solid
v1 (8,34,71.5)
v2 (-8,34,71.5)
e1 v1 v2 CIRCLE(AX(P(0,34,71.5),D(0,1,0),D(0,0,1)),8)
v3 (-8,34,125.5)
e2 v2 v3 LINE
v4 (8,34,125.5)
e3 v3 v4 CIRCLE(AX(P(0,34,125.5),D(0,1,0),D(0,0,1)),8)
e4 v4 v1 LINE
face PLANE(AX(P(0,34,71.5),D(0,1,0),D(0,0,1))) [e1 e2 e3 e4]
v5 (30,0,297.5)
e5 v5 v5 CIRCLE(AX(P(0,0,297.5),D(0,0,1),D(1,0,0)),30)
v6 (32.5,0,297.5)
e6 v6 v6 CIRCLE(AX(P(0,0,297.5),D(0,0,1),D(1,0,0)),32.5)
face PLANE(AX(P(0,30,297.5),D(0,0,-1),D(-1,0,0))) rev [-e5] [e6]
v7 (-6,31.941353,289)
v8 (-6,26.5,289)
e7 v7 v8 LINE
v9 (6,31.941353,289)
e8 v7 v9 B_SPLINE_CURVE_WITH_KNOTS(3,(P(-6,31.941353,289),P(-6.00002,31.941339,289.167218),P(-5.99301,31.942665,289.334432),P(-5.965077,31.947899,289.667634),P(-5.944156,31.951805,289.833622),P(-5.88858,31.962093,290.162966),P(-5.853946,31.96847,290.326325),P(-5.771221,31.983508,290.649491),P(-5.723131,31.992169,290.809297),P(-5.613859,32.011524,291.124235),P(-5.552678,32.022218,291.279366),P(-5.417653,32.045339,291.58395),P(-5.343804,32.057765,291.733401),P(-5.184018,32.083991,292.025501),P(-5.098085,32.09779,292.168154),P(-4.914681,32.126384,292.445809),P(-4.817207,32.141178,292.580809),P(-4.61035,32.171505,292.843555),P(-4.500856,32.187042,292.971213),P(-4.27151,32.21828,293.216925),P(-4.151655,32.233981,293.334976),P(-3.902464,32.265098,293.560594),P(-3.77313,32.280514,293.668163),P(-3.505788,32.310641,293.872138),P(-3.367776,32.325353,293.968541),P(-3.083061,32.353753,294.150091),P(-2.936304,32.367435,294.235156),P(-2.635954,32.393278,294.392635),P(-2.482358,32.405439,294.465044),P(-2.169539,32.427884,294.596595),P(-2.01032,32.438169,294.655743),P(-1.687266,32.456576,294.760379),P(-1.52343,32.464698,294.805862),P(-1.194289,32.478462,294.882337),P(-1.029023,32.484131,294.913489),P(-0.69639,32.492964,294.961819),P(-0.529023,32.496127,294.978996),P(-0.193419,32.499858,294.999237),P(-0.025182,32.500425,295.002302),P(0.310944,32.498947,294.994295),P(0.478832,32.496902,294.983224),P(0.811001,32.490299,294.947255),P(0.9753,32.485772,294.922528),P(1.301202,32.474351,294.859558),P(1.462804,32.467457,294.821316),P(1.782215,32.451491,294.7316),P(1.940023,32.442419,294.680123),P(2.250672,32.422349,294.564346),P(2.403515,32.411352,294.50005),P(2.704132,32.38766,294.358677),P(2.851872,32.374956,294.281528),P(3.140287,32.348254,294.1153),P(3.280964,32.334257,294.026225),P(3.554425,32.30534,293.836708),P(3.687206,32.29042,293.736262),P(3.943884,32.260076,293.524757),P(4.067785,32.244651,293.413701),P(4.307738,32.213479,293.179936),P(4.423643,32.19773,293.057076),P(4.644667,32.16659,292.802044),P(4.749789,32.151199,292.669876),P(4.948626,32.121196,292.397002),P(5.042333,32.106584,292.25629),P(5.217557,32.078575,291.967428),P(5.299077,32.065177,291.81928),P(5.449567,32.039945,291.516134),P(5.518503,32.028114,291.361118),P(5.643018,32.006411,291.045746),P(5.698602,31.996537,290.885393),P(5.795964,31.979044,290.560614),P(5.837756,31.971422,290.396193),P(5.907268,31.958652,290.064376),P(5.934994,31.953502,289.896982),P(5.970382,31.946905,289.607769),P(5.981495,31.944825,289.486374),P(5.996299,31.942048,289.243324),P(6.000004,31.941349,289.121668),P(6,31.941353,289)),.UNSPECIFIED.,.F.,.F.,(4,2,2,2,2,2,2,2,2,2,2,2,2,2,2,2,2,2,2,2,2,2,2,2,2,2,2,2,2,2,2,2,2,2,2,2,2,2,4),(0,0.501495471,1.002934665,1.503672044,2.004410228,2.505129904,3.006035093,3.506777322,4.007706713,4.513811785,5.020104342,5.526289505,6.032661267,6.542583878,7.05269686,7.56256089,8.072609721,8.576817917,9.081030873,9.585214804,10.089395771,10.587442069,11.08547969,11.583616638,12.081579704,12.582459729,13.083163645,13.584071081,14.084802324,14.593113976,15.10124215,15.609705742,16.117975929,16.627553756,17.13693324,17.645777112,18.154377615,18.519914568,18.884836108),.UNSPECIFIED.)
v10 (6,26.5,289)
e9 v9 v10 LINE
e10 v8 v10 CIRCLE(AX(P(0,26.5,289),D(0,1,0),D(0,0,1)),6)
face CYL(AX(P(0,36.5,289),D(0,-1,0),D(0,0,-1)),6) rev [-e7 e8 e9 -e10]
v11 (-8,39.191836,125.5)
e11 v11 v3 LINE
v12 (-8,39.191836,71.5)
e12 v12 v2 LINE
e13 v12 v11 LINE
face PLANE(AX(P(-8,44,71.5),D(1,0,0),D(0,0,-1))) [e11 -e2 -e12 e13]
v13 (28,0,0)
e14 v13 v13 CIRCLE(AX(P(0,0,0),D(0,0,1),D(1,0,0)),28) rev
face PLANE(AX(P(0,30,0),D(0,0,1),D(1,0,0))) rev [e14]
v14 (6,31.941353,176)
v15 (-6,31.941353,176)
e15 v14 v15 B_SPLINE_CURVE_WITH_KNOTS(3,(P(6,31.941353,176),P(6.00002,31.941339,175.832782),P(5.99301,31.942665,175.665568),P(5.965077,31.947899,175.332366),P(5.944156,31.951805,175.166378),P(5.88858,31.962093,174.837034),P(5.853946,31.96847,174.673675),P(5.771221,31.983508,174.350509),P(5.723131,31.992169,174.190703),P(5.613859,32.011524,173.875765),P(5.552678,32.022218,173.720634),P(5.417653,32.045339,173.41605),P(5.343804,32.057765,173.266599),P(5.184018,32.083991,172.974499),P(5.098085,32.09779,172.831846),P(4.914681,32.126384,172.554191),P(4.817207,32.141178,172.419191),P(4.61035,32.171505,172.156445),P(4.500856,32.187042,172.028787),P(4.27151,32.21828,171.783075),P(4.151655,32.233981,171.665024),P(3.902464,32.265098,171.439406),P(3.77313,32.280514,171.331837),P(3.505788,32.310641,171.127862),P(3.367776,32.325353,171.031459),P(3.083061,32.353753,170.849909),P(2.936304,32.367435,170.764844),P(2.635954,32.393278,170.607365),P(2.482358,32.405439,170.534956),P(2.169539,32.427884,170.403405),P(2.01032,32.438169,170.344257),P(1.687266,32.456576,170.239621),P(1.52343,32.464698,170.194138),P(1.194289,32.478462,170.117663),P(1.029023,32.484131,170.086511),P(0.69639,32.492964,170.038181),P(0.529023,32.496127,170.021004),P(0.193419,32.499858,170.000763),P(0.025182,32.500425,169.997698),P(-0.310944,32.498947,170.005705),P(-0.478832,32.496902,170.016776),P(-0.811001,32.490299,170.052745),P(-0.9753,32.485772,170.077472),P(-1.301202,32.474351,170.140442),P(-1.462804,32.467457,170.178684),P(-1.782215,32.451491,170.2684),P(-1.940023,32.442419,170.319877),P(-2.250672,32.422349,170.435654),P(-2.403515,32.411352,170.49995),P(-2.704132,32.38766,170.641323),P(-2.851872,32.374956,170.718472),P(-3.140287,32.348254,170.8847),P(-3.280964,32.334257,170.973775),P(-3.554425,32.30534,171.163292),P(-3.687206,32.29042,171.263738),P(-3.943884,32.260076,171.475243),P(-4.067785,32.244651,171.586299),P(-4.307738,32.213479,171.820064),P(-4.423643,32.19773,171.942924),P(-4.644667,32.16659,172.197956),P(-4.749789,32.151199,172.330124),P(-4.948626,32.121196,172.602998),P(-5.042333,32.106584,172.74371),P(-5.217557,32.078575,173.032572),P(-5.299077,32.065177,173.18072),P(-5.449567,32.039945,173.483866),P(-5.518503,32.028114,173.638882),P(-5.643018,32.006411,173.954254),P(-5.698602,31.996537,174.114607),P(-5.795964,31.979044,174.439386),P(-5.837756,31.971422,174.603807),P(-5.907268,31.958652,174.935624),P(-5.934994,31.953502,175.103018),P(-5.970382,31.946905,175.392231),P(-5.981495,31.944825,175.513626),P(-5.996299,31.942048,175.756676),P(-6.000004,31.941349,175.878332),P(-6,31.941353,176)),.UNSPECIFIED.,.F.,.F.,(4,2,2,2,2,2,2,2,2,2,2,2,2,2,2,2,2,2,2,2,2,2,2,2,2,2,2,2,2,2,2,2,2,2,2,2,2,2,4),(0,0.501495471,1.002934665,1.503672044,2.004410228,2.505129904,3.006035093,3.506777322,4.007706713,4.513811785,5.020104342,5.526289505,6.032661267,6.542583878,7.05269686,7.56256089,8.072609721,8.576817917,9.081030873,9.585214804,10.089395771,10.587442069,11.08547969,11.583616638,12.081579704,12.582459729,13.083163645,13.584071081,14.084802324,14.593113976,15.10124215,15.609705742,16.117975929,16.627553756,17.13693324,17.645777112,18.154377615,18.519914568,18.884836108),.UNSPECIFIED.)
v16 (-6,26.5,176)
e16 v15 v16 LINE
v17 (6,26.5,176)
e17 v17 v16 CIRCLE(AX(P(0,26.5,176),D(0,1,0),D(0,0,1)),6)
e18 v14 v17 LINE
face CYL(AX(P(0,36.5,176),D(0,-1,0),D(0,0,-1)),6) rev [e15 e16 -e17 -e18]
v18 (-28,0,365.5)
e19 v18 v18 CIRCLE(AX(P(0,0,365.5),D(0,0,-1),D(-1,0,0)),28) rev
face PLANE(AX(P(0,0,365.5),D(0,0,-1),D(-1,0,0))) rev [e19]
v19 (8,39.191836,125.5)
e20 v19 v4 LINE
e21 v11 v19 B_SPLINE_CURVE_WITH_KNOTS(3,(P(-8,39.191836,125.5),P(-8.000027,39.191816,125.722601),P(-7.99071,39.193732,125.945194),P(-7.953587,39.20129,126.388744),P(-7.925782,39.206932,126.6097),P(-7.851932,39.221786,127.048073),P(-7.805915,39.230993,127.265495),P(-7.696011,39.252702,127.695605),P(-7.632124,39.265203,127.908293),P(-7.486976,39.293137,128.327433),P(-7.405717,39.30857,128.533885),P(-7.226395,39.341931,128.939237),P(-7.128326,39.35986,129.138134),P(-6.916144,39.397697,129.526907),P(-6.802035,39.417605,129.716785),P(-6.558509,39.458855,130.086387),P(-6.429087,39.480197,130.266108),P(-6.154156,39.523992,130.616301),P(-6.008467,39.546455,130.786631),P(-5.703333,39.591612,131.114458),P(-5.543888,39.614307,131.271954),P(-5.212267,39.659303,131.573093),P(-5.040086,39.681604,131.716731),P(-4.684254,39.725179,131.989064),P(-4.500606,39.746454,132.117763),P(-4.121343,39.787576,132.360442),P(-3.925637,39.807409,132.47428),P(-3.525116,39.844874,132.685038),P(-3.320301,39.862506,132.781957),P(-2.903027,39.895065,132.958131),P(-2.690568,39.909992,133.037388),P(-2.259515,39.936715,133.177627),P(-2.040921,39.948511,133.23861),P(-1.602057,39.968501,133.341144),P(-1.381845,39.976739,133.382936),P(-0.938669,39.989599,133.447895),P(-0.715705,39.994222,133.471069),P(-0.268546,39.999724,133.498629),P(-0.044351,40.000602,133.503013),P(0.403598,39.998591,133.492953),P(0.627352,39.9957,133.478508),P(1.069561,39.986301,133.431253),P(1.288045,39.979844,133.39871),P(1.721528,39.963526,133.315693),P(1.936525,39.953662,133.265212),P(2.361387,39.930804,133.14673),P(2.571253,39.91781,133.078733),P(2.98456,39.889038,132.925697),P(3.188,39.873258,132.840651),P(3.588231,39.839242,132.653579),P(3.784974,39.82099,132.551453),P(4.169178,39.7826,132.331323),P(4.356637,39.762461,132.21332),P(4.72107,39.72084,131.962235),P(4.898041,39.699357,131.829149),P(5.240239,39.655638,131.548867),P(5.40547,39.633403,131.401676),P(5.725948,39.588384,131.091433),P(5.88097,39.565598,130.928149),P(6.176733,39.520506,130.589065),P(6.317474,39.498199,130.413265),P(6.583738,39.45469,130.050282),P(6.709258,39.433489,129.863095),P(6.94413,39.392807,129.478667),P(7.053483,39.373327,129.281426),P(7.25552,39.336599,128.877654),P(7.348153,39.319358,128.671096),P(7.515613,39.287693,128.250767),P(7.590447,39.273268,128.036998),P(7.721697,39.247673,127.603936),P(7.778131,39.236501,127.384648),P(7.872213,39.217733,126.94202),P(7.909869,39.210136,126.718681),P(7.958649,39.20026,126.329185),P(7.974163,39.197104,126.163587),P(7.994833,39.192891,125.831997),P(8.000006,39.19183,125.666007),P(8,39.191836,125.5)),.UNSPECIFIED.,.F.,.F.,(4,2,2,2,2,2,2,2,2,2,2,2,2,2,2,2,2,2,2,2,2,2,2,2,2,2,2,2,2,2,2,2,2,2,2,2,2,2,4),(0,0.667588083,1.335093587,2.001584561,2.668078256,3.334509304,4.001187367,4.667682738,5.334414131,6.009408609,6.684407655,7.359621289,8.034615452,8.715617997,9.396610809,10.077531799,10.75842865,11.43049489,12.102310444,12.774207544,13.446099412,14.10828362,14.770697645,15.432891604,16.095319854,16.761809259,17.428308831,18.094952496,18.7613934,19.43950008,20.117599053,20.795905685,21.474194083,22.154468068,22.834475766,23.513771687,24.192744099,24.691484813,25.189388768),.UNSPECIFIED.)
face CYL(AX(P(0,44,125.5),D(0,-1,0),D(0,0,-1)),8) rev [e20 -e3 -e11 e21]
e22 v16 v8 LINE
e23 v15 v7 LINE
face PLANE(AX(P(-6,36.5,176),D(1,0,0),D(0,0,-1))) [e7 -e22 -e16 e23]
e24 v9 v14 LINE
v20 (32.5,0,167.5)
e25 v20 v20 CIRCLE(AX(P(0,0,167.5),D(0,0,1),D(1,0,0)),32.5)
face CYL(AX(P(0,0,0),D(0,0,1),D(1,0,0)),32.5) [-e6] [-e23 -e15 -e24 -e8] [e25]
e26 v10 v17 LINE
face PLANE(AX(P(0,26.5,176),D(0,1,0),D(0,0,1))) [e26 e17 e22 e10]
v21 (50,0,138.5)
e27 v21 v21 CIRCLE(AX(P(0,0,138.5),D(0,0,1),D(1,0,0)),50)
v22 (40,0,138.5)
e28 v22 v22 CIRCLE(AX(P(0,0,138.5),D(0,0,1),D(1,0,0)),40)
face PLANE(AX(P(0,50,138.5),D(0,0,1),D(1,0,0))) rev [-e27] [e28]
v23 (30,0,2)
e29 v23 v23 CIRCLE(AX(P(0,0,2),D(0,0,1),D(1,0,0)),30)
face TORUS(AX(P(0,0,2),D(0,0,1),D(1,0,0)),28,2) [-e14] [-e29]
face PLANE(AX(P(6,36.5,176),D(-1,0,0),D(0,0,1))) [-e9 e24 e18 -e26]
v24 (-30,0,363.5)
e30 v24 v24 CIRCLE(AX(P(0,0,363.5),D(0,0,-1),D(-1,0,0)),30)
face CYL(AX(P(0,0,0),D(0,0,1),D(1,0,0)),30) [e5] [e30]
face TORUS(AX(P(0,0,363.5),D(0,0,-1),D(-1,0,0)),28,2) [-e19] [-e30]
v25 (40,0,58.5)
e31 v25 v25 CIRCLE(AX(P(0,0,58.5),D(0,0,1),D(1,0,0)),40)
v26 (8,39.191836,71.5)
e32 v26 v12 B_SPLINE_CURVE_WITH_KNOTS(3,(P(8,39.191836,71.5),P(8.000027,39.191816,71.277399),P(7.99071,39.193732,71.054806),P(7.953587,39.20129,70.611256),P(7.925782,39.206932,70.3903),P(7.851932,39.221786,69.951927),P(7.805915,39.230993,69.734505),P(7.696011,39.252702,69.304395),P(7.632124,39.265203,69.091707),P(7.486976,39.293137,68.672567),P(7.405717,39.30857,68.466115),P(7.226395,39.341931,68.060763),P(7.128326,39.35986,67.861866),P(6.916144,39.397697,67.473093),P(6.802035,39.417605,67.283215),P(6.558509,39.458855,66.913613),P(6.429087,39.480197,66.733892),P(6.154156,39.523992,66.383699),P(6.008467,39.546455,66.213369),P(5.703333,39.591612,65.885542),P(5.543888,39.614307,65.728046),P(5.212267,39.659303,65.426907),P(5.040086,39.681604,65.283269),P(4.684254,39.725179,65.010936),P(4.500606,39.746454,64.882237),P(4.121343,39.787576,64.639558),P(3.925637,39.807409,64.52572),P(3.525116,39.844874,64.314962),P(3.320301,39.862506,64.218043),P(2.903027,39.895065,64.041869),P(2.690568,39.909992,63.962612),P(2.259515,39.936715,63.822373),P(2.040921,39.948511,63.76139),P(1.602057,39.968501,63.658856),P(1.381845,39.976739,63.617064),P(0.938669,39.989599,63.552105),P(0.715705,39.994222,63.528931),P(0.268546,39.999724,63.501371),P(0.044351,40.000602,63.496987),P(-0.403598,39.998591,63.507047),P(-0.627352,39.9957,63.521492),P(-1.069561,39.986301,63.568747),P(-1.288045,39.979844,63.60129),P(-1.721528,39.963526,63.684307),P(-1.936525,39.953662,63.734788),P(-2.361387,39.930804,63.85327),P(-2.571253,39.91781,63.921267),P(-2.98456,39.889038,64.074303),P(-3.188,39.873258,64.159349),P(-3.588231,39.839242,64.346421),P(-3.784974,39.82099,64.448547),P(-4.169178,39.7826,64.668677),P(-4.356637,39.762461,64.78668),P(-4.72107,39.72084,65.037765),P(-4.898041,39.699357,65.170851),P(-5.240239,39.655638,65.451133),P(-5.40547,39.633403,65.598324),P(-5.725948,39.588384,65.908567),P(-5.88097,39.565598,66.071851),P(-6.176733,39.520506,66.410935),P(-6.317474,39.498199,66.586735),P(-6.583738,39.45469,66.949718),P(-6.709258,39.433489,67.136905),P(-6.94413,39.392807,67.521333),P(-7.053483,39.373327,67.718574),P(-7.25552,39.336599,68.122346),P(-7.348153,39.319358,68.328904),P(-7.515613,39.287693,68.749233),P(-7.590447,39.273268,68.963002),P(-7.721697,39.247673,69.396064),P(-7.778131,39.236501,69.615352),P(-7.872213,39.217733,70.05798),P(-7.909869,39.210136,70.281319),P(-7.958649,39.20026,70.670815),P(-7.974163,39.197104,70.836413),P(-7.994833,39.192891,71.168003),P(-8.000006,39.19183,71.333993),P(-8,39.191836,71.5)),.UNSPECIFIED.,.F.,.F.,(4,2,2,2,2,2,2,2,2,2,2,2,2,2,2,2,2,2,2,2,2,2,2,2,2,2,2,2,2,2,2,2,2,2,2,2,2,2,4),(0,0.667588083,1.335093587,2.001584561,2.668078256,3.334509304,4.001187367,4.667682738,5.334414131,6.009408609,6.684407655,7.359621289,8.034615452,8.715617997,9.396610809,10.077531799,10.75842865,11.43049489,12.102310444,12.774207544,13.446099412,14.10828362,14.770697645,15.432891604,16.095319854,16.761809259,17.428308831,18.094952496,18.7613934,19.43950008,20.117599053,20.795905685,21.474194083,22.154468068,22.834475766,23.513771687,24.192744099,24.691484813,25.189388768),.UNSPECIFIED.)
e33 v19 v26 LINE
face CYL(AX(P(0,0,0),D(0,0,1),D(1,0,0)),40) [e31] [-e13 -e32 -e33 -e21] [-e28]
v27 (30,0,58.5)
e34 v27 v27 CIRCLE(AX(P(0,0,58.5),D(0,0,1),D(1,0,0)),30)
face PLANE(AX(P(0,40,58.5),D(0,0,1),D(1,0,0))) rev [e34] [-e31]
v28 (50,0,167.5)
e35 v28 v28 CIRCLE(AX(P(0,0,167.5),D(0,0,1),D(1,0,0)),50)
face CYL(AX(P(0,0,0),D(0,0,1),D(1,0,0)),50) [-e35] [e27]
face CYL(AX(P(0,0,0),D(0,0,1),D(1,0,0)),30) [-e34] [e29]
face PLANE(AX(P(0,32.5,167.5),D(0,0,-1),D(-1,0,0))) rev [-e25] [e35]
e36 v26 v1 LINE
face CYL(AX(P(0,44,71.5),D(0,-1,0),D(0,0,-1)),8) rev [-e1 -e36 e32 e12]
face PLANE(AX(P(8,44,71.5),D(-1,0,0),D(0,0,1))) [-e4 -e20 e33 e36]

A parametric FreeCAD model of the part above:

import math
import FreeCAD as App
import Part
import Sketcher

V = App.Vector
Q = App.Units.Quantity


def edges_at(feature, points):
    """Names of the edges that pass closest to the given points."""
    edges = feature.Shape.Edges
    near = lambda p: min(range(len(edges)), key=lambda i: edges[i].distToShape(Part.Vertex(*p))[0])
    return sorted({f"Edge{near(p) + 1}" for p in points})


def add_polygon(sketch, points):
    """Adds a closed chain of lines whose ends are joined by coincident constraints."""
    first, n = sketch.GeometryCount, len(points)
    for a, b in zip(points, points[1:] + points[:1]):
        sketch.addGeometry(Part.LineSegment(App.Vector(*a, 0), App.Vector(*b, 0)), False)
    for i in range(n):
        sketch.addConstraint(Sketcher.Constraint("Coincident", first + i, 2, first + (i + 1) % n, 1))

doc = App.newDocument("Part")
body = doc.addObject("PartDesign::Body", "Body")

sketch1 = body.newObject("Sketcher::SketchObject", "Sketch")
sketch1.AttachmentSupport = (doc.getObject("YZ_Plane"), [""])
sketch1.MapMode = "FlatFace"
add_polygon(sketch1, [(0, 365.5), (0, 0), (30, 0), (30, 58.5), (40, 58.5), (40, 138.5), (50, 138.5), (50, 167.5), (32.5, 167.5), (32.5, 297.5), (30, 297.5), (30, 365.5)])
sketch1.addConstraint(Sketcher.Constraint("Vertical", 0))
sketch1.addConstraint(Sketcher.Constraint("Horizontal", 1))
sketch1.addConstraint(Sketcher.Constraint("Vertical", 2))
sketch1.addConstraint(Sketcher.Constraint("Horizontal", 3))
sketch1.addConstraint(Sketcher.Constraint("Vertical", 4))
sketch1.addConstraint(Sketcher.Constraint("Horizontal", 5))
sketch1.addConstraint(Sketcher.Constraint("Vertical", 6))
sketch1.addConstraint(Sketcher.Constraint("Horizontal", 7))
sketch1.addConstraint(Sketcher.Constraint("Vertical", 8))
sketch1.addConstraint(Sketcher.Constraint("Horizontal", 9))
sketch1.addConstraint(Sketcher.Constraint("Vertical", 10))
sketch1.addConstraint(Sketcher.Constraint("Horizontal", 11))
sketch1.addConstraint(Sketcher.Constraint("Coincident", 0, 2, -1, 1))
sketch1.addConstraint(Sketcher.Constraint("Vertical", 2, 2, 9, 2))
sketch1.addConstraint(Sketcher.Constraint("Equal", 3, 5))
sketch1.addConstraint(Sketcher.Constraint("DistanceX", 1, 1, 1, 2, Q("30 mm")))
sketch1.addConstraint(Sketcher.Constraint("DistanceX", 3, 1, 3, 2, Q("10 mm")))
sketch1.addConstraint(Sketcher.Constraint("DistanceY", 4, 1, 4, 2, Q("80 mm")))
sketch1.addConstraint(Sketcher.Constraint("DistanceY", 6, 1, 6, 2, Q("29 mm")))
sketch1.addConstraint(Sketcher.Constraint("DistanceY", 8, 1, 8, 2, Q("130 mm")))
sketch1.addConstraint(Sketcher.Constraint("DistanceY", 10, 1, 10, 2, Q("68 mm")))
sketch1.addConstraint(Sketcher.Constraint("DistanceX", 7, 2, 7, 1, Q("17.5 mm")))
sketch1.addConstraint(Sketcher.Constraint("DistanceY", 0, 2, 0, 1, Q("365.5 mm")))
revolution = body.newObject("PartDesign::Revolution", "Revolution")
revolution.Profile = sketch1
revolution.ReferenceAxis = (sketch1, ["V_Axis"])
revolution.Angle = 360
doc.recompute()

fillet = body.newObject("PartDesign::Fillet", "Fillet")
fillet.Base = (revolution, edges_at(revolution, [(0, -30, 365.5), (0, -30, 0)]))
fillet.Radius = 2

sketch2 = body.newObject("Sketcher::SketchObject", "Sketch001")
sketch2.AttachmentSupport = (doc.getObject("XZ_Plane"), [""])
sketch2.MapMode = "FlatFace"
sketch2.AttachmentOffset = App.Placement(V(0, 0, -34), App.Rotation())
sketch2.addGeometry(Part.LineSegment(V(8, 126, 0), V(8, 72, 0)), False)
sketch2.addGeometry(Part.ArcOfCircle(Part.Circle(V(0, 72, 0), V(0, 0, 1), 8), math.radians(180), math.radians(360)), False)
sketch2.addGeometry(Part.LineSegment(V(-8, 72, 0), V(-8, 126, 0)), False)
sketch2.addGeometry(Part.ArcOfCircle(Part.Circle(V(0, 126, 0), V(0, 0, 1), 8), math.radians(0), math.radians(180)), False)
sketch2.addConstraint(Sketcher.Constraint("Tangent", 0, 2, 1, 2))
sketch2.addConstraint(Sketcher.Constraint("Tangent", 1, 1, 2, 1))
sketch2.addConstraint(Sketcher.Constraint("Tangent", 2, 2, 3, 2))
sketch2.addConstraint(Sketcher.Constraint("Tangent", 3, 1, 0, 1))
sketch2.addConstraint(Sketcher.Constraint("Vertical", 0))
sketch2.addConstraint(Sketcher.Constraint("Vertical", 2))
sketch2.addConstraint(Sketcher.Constraint("PointOnObject", 1, 3, -2))
sketch2.addConstraint(Sketcher.Constraint("Radius", 1, Q("8 mm")))
sketch2.addConstraint(Sketcher.Constraint("DistanceY", 0, 2, 0, 1, Q("54 mm")))
sketch2.addConstraint(Sketcher.Constraint("DistanceY", -1, 1, 1, 3, Q("71.5 mm")))
pocket1 = body.newObject("PartDesign::Pocket", "Pocket")
pocket1.Profile = sketch2
pocket1.Length = 10

sketch3 = body.newObject("Sketcher::SketchObject", "Sketch002")
sketch3.AttachmentSupport = (doc.getObject("XZ_Plane"), [""])
sketch3.MapMode = "FlatFace"
sketch3.AttachmentOffset = App.Placement(V(0, 0, -26.5), App.Rotation())
sketch3.addGeometry(Part.LineSegment(V(6, 289, 0), V(6, 176, 0)), False)
sketch3.addGeometry(Part.ArcOfCircle(Part.Circle(V(0, 176, 0), V(0, 0, 1), 6), math.radians(180), math.radians(360)), False)
sketch3.addGeometry(Part.LineSegment(V(-6, 176, 0), V(-6, 289, 0)), False)
sketch3.addGeometry(Part.ArcOfCircle(Part.Circle(V(0, 289, 0), V(0, 0, 1), 6), math.radians(0), math.radians(180)), False)
sketch3.addConstraint(Sketcher.Constraint("Tangent", 0, 2, 1, 2))
sketch3.addConstraint(Sketcher.Constraint("Tangent", 1, 1, 2, 1))
sketch3.addConstraint(Sketcher.Constraint("Tangent", 2, 2, 3, 2))
sketch3.addConstraint(Sketcher.Constraint("Tangent", 3, 1, 0, 1))
sketch3.addConstraint(Sketcher.Constraint("Vertical", 0))
sketch3.addConstraint(Sketcher.Constraint("Vertical", 2))
sketch3.addConstraint(Sketcher.Constraint("PointOnObject", 1, 3, -2))
sketch3.addConstraint(Sketcher.Constraint("Radius", 1, Q("6 mm")))
sketch3.addConstraint(Sketcher.Constraint("DistanceY", 0, 2, 0, 1, Q("113 mm")))
sketch3.addConstraint(Sketcher.Constraint("DistanceY", -1, 1, 1, 3, Q("176 mm")))
pocket2 = body.newObject("PartDesign::Pocket", "Pocket001")
pocket2.Profile = sketch3
pocket2.Length = 10

doc.recompute()
